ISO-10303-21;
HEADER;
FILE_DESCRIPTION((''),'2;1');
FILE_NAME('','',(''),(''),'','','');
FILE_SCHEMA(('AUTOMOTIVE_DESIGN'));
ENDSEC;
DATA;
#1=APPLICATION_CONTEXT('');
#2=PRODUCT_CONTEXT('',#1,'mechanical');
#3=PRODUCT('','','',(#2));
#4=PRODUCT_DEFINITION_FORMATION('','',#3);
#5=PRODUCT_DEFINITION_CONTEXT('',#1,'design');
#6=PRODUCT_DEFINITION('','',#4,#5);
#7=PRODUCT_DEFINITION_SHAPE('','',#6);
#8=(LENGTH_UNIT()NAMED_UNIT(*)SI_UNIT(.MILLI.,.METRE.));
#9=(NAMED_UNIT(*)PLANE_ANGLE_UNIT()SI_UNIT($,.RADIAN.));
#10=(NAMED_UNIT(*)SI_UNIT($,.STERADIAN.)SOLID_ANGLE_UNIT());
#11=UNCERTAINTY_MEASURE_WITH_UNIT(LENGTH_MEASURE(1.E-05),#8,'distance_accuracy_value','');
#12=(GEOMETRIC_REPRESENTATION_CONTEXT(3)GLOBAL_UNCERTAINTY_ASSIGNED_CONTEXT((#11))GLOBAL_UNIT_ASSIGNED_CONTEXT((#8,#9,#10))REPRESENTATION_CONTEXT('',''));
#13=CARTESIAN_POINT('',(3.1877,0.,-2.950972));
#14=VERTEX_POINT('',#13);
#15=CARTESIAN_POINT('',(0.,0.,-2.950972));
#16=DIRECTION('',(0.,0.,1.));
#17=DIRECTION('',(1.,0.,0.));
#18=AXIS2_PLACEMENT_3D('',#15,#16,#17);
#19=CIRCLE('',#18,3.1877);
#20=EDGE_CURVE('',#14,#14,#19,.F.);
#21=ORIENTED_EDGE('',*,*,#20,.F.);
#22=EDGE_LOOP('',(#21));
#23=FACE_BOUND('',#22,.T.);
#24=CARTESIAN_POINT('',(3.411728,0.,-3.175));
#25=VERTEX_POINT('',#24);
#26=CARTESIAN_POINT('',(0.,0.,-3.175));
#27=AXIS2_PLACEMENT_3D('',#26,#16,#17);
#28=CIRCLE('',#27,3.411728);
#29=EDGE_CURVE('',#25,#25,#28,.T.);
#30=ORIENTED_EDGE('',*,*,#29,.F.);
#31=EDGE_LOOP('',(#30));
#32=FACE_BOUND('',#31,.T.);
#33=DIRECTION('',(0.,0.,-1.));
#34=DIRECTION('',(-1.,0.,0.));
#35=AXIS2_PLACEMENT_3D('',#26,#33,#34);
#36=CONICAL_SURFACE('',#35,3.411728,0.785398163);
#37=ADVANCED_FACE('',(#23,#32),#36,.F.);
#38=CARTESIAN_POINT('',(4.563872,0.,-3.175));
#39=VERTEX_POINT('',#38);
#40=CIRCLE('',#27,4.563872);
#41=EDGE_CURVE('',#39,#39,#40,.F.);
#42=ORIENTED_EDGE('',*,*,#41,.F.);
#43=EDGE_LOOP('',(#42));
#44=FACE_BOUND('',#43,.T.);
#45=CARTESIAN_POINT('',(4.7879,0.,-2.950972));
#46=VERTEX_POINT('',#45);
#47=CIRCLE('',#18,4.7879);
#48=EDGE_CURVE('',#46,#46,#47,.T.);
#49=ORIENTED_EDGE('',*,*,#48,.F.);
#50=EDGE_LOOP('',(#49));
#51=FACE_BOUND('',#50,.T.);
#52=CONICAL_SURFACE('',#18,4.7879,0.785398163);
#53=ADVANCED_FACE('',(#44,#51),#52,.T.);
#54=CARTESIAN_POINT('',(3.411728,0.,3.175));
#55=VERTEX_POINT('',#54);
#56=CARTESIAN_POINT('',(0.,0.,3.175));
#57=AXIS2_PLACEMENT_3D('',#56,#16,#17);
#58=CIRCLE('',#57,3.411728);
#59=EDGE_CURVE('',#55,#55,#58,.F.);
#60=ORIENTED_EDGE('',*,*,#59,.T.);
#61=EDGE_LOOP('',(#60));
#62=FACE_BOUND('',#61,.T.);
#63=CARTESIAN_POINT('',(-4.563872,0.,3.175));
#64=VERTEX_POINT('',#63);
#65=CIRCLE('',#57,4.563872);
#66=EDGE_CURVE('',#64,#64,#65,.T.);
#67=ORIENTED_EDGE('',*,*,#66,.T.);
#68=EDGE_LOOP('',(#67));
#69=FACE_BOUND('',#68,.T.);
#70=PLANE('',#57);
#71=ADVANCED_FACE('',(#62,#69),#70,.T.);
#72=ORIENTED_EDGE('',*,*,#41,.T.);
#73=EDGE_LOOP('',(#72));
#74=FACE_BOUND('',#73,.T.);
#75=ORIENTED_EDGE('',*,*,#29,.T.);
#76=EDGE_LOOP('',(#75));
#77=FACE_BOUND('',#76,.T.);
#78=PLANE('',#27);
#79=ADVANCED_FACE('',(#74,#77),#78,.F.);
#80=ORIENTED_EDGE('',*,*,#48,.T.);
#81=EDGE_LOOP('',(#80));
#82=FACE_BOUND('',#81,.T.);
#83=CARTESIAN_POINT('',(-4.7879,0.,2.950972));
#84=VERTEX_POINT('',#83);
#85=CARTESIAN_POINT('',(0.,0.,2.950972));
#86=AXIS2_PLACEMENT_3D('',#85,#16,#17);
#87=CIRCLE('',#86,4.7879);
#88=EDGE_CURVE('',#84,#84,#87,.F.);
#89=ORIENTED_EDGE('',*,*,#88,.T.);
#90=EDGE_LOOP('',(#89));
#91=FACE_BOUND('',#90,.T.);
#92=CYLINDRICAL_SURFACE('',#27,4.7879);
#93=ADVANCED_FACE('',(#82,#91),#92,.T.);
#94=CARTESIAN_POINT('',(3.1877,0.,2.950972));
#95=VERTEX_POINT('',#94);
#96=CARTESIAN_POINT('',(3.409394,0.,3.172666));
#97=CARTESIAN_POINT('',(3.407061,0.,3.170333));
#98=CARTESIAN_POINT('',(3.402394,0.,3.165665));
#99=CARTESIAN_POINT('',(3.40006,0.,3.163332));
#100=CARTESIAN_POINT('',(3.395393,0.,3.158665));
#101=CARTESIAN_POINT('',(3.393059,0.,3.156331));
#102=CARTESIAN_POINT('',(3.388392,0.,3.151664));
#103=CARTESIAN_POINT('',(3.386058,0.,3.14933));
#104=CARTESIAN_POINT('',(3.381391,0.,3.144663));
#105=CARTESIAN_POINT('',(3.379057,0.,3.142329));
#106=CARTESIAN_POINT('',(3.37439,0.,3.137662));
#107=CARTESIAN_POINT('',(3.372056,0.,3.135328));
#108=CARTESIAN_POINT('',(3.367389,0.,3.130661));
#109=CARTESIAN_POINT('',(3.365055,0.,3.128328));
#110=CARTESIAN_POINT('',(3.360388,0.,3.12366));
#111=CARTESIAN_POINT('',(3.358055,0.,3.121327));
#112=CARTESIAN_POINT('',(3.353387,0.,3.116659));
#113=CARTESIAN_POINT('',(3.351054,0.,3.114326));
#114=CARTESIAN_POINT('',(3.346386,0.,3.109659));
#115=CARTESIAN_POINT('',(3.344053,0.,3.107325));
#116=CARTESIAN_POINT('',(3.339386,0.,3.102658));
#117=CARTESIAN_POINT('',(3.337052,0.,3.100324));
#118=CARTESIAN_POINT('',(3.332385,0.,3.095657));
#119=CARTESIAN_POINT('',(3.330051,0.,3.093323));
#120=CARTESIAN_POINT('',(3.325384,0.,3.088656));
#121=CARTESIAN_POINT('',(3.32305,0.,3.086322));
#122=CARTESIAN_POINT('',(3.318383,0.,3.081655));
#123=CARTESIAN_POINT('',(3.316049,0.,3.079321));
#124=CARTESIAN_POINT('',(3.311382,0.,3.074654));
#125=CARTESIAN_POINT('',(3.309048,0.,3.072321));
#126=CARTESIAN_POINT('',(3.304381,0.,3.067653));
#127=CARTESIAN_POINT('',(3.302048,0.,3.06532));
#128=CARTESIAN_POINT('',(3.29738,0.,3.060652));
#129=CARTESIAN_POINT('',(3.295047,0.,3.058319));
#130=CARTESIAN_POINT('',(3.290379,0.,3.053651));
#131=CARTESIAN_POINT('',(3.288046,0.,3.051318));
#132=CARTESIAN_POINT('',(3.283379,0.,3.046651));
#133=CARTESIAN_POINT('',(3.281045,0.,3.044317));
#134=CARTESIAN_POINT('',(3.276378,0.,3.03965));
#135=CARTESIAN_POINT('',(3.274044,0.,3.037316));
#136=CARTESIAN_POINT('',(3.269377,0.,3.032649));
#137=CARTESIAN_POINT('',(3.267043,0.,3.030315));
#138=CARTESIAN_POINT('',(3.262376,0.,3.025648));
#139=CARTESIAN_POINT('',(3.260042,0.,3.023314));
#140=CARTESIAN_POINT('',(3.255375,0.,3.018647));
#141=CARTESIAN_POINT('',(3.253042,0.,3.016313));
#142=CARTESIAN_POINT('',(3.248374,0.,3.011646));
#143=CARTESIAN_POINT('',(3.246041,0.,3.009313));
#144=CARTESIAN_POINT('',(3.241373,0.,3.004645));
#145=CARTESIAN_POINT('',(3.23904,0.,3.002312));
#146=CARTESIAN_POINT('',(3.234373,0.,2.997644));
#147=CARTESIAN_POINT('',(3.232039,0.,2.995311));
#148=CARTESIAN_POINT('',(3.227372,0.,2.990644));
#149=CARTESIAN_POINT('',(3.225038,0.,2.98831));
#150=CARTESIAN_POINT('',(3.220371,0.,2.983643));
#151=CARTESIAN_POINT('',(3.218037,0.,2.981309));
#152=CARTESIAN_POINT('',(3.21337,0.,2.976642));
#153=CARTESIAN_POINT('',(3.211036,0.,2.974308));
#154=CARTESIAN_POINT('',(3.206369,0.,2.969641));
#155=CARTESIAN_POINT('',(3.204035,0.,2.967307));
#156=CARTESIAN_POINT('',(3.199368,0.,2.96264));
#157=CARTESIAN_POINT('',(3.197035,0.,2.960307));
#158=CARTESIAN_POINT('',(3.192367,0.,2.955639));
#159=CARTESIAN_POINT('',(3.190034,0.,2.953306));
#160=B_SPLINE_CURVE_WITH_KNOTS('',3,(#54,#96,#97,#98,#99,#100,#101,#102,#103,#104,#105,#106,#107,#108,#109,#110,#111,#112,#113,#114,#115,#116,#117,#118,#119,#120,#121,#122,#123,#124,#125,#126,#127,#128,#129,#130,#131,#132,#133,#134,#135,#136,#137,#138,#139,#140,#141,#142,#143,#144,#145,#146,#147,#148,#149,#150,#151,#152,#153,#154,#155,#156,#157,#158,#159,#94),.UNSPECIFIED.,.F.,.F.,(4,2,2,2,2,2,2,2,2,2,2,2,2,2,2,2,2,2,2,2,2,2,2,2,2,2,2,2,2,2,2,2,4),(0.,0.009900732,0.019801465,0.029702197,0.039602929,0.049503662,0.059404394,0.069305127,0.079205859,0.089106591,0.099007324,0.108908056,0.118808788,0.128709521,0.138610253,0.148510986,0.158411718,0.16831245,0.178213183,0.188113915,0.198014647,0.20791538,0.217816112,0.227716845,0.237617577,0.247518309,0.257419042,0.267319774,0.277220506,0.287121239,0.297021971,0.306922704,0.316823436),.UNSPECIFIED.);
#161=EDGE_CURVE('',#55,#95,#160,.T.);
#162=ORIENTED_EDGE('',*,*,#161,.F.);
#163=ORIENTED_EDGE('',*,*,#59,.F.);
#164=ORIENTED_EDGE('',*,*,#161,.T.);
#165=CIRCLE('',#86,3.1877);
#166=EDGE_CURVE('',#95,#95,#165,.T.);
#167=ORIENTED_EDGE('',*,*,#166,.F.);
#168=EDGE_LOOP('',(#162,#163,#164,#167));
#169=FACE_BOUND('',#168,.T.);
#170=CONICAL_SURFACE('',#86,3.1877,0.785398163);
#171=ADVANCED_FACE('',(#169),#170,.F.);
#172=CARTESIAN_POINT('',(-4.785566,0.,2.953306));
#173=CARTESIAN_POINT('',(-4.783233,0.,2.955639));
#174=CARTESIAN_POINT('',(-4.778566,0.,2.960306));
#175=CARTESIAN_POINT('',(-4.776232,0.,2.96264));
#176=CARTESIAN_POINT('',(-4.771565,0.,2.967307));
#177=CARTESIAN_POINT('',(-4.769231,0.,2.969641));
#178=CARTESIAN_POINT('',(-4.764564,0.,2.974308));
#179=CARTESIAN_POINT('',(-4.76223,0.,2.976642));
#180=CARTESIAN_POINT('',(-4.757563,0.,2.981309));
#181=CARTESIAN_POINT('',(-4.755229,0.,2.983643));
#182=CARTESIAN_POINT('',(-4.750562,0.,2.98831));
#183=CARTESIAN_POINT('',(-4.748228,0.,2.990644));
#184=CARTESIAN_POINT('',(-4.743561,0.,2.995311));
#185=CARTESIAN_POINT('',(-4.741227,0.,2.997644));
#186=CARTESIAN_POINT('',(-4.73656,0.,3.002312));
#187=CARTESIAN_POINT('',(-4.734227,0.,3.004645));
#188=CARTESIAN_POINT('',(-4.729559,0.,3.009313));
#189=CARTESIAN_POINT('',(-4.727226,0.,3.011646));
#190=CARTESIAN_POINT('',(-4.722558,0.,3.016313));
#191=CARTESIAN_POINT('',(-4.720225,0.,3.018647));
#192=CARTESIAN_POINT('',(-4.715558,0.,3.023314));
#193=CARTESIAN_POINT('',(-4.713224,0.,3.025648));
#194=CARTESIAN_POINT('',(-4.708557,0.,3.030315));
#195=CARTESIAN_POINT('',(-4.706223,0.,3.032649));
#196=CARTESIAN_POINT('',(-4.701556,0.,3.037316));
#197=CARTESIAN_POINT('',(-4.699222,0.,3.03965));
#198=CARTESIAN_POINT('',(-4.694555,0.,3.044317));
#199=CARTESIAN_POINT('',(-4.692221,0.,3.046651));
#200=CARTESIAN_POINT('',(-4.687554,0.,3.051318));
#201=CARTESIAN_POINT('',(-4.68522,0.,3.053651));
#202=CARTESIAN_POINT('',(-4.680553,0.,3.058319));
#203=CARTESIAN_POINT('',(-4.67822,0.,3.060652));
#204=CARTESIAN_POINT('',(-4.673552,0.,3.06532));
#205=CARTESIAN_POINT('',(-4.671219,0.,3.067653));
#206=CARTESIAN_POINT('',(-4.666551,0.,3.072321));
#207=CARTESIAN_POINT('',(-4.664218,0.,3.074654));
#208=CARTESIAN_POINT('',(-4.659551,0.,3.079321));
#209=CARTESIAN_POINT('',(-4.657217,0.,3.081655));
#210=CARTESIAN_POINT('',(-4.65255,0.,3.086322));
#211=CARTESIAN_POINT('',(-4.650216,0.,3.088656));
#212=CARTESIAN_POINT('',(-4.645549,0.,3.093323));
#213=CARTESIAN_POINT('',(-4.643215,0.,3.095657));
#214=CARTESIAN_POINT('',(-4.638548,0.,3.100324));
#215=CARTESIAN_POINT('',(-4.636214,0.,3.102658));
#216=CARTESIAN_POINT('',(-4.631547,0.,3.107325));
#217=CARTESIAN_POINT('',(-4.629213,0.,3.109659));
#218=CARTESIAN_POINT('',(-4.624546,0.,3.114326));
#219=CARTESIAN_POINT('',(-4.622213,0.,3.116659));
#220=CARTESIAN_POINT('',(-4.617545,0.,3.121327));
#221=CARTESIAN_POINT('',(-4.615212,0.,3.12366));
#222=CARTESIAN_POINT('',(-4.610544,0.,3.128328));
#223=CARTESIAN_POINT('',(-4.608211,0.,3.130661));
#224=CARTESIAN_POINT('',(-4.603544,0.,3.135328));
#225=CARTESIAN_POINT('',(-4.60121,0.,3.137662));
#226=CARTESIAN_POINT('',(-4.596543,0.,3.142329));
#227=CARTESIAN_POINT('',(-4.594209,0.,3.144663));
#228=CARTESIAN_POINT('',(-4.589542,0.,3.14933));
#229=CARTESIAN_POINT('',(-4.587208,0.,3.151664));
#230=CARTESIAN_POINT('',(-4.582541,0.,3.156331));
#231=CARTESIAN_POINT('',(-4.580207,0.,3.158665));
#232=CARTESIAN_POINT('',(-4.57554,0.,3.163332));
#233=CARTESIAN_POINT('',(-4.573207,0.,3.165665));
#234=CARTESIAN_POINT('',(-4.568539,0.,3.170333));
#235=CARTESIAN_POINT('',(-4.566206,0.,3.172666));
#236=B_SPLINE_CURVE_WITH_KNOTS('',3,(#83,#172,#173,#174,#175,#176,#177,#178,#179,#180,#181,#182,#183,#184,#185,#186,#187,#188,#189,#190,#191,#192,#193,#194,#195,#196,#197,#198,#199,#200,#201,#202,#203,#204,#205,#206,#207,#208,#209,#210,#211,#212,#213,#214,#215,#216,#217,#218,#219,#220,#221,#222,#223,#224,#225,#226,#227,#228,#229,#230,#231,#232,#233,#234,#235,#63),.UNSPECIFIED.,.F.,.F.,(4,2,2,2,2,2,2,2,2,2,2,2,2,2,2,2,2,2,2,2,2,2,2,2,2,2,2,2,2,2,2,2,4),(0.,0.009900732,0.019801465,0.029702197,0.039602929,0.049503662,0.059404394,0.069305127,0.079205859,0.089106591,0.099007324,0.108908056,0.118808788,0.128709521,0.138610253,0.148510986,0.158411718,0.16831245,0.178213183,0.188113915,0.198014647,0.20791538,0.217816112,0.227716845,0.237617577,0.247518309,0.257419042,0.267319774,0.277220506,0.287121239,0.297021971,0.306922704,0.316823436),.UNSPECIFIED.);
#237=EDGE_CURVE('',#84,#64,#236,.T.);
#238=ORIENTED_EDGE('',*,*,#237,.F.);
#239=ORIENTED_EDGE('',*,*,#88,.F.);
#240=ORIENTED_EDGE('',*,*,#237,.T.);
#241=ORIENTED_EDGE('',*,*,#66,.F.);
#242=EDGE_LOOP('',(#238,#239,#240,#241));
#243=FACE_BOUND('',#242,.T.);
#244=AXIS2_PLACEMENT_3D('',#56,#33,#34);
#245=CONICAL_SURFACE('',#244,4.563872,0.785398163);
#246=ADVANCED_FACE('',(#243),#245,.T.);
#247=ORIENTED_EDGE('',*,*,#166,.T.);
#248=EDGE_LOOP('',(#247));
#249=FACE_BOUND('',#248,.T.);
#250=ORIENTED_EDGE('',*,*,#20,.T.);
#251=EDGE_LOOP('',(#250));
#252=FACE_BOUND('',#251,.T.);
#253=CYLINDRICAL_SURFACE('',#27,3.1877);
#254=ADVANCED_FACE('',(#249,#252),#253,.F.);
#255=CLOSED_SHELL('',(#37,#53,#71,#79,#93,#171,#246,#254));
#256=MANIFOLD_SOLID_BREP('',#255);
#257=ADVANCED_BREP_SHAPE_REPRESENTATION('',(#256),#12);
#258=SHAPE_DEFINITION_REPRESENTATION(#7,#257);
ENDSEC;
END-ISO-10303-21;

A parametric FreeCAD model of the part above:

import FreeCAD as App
import Part
import Sketcher

V = App.Vector
Q = App.Units.Quantity


def edges_at(feature, points):
    """Names of the edges that pass closest to the given points."""
    edges = feature.Shape.Edges
    near = lambda p: min(range(len(edges)), key=lambda i: edges[i].distToShape(Part.Vertex(*p))[0])
    return sorted({f"Edge{near(p) + 1}" for p in points})

doc = App.newDocument("Part")
body = doc.addObject("PartDesign::Body", "Body")

sketch1 = body.newObject("Sketcher::SketchObject", "Sketch")
sketch1.AttachmentSupport = (doc.getObject("XY_Plane"), [""])
sketch1.MapMode = "FlatFace"
sketch1.addGeometry(Part.Circle(V(0, 0, 0), V(0, 0, 1), 4.8), False)
sketch1.addGeometry(Part.Circle(V(0, 0, 0), V(0, 0, 1), 3.2), False)
sketch1.addConstraint(Sketcher.Constraint("Coincident", 0, 3, -1, 1))
sketch1.addConstraint(Sketcher.Constraint("Coincident", 1, 3, -1, 1))
sketch1.addConstraint(Sketcher.Constraint("Diameter", 0, Q("0.377 in")))
sketch1.addConstraint(Sketcher.Constraint("Diameter", 1, Q("0.251 in")))
pad1 = body.newObject("PartDesign::Pad", "Pad")
pad1.Profile = sketch1
pad1.Type = "TwoLengths"
pad1.Length = Q("0.125 in")
pad1.Length2 = Q("0.125 in")
doc.recompute()

chamfer = body.newObject("PartDesign::Chamfer", "Chamfer")
chamfer.Base = (pad1, edges_at(pad1, [
    (-4.788, 0, -3.175),
    (-3.188, 0, -3.175),
    (-4.788, 0, 3.175),
    (-3.188, 0, 3.175),
]))
chamfer.Size = 0.224028

doc.recompute()
